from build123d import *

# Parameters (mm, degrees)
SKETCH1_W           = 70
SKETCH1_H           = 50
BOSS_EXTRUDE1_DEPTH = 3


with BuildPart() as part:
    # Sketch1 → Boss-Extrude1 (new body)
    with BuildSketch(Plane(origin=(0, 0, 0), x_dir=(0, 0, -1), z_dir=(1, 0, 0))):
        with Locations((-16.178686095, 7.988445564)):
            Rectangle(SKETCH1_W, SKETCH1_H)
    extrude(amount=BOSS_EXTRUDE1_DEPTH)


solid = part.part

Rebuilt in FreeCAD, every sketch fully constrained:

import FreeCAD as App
import Part
import Sketcher

V = App.Vector
Q = App.Units.Quantity

doc = App.newDocument("Part")
body = doc.addObject("PartDesign::Body", "Body")

# Sketch on YZ plane
sketch1 = body.newObject("Sketcher::SketchObject", "Sketch")
sketch1.AttachmentSupport = (doc.getObject("YZ_Plane"), [""])
sketch1.MapMode = "FlatFace"
sketch1.addGeometry([
    Part.LineSegment(V(32.988446, 51.178686, 0), V(-17.011554, 51.178686, 0)),
    Part.LineSegment(V(-17.011554, 51.178686, 0), V(-17.011554, -18.821314, 0)),
    Part.LineSegment(V(-17.011554, -18.821314, 0), V(32.988446, -18.821314, 0)),
    Part.LineSegment(V(32.988446, -18.821314, 0), V(32.988446, 51.178686, 0)),
], False)
sketch1.addConstraint([
    Sketcher.Constraint("Coincident", 0, 2, 1, 1),
    Sketcher.Constraint("Coincident", 1, 2, 2, 1),
    Sketcher.Constraint("Coincident", 2, 2, 3, 1),
    Sketcher.Constraint("Coincident", 3, 2, 0, 1),
    Sketcher.Constraint("Horizontal", 0),
    Sketcher.Constraint("Vertical", 1),
    Sketcher.Constraint("Horizontal", 2),
    Sketcher.Constraint("Vertical", 3),
    Sketcher.Constraint("DistanceX", 0, 2, 0, 1, Q("50 mm")),
    Sketcher.Constraint("DistanceY", 1, 2, 1, 1, Q("70 mm")),
    Sketcher.Constraint("DistanceX", 0, 2, -1, 1, Q("17.011554 mm")),
    Sketcher.Constraint("DistanceY", -1, 1, 0, 2, Q("51.178686 mm")),
])
pad1 = body.newObject("PartDesign::Pad", "Pad")
pad1.Profile = sketch1
pad1.Length = 3

doc.recompute()
